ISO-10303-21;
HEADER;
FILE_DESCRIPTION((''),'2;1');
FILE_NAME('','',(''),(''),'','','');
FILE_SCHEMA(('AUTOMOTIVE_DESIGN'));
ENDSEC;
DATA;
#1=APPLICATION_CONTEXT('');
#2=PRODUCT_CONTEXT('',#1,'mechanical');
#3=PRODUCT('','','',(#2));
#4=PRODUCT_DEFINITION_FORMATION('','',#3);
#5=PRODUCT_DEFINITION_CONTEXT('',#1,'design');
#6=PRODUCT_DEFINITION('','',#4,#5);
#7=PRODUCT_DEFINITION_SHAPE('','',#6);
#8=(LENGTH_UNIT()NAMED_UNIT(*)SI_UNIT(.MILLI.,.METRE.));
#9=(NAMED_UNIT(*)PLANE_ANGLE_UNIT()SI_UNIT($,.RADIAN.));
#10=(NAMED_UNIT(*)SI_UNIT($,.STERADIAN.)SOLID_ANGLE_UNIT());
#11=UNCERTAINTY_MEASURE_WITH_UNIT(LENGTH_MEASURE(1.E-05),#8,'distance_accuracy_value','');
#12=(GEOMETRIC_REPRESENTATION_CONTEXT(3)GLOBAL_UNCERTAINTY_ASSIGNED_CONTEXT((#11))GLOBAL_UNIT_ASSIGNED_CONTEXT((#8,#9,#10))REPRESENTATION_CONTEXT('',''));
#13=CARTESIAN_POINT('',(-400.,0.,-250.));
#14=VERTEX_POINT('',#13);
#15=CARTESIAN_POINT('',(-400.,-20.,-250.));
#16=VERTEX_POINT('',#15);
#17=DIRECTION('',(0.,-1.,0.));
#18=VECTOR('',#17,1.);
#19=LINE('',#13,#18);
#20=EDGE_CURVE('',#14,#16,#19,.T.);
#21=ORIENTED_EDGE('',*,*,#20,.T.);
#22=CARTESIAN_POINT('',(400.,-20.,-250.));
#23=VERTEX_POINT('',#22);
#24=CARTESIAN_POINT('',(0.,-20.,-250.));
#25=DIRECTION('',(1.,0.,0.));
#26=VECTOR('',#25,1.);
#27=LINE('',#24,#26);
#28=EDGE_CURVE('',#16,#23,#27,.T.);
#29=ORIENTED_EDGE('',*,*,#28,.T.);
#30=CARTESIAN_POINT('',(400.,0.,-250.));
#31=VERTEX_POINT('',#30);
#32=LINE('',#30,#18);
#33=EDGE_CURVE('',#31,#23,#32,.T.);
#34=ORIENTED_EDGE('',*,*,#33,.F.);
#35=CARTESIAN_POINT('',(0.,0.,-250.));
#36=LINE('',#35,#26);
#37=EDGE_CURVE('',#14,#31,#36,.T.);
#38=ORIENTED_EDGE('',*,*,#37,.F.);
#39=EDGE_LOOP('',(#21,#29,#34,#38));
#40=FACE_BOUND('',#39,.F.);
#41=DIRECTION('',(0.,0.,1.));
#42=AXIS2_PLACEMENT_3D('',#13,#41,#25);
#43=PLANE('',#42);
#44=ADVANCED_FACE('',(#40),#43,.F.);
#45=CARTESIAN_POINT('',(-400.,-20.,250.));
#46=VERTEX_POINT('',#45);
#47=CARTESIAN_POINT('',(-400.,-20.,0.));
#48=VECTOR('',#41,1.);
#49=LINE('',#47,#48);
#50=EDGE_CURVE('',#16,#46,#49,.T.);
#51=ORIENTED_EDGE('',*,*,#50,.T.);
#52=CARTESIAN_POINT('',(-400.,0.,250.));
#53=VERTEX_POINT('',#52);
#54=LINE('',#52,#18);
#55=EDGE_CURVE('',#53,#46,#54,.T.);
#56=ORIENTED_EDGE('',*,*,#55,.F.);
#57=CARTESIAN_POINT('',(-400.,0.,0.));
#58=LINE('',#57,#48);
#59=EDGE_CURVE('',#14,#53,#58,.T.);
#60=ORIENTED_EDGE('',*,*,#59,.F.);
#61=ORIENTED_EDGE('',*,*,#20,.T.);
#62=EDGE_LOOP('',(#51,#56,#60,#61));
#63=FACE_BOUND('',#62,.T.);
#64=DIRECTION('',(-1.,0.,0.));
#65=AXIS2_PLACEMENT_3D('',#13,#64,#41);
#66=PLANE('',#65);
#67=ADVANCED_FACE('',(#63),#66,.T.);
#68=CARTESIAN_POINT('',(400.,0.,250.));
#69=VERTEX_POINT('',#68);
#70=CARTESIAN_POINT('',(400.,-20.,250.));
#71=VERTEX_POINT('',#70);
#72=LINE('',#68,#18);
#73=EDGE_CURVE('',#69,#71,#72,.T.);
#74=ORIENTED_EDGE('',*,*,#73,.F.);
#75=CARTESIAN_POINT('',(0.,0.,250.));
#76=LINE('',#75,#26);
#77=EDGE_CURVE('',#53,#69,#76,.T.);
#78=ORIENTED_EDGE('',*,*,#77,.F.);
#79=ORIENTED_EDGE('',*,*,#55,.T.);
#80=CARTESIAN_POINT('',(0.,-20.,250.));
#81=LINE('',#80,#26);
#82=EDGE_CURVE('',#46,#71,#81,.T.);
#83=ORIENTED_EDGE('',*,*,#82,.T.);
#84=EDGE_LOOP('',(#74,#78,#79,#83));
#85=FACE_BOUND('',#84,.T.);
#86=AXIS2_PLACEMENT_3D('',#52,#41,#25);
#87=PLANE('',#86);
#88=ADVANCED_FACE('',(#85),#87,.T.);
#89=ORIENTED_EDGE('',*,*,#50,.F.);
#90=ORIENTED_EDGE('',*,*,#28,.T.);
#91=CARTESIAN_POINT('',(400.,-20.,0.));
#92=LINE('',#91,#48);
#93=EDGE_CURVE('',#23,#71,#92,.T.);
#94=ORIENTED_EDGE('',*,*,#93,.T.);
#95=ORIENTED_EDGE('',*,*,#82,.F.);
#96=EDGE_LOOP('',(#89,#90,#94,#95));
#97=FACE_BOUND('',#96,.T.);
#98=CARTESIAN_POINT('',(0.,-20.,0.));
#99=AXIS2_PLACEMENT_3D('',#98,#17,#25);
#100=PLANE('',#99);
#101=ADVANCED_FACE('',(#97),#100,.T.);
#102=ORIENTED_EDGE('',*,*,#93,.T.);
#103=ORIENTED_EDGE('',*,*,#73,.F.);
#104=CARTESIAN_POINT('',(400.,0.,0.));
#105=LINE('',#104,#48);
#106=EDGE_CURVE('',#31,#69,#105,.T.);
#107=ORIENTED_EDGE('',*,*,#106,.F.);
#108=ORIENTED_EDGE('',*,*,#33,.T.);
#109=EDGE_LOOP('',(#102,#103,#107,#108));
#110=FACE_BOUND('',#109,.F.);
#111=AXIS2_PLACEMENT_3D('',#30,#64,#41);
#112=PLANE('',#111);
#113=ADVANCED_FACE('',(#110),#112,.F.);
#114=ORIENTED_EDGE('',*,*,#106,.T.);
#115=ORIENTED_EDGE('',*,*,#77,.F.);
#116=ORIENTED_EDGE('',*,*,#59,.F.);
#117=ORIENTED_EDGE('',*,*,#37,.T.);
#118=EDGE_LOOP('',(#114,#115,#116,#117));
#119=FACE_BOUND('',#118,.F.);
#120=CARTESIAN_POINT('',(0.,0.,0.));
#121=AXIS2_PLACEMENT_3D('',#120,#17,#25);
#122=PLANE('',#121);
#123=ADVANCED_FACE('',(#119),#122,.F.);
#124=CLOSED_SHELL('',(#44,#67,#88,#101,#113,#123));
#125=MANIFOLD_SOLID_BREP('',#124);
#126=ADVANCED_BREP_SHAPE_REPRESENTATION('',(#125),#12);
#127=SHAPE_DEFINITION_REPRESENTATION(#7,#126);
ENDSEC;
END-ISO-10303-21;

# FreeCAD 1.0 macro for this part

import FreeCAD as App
import Part
import Sketcher

V = App.Vector
Q = App.Units.Quantity


def add_polygon(sketch, points):
    """Adds a closed chain of lines whose ends are joined by coincident constraints."""
    first, n = sketch.GeometryCount, len(points)
    for a, b in zip(points, points[1:] + points[:1]):
        sketch.addGeometry(Part.LineSegment(App.Vector(*a, 0), App.Vector(*b, 0)), False)
    for i in range(n):
        sketch.addConstraint(Sketcher.Constraint("Coincident", first + i, 2, first + (i + 1) % n, 1))

doc = App.newDocument("Part")
body = doc.addObject("PartDesign::Body", "Body")

# Sketch on XZ plane
sketch1 = doc.addObject("Sketcher::SketchObject", "Sketch")
body.addObject(sketch1)
sketch1.AttachmentSupport = (doc.XZ_Plane, [""])
sketch1.MapMode = "FlatFace"
add_polygon(sketch1, [(-400, 250), (-400, -250), (400, -250), (400, 250)])  # lines 0-3
sketch1.addConstraint(Sketcher.Constraint("Vertical", 0))
sketch1.addConstraint(Sketcher.Constraint("Horizontal", 1))
sketch1.addConstraint(Sketcher.Constraint("Vertical", 2))
sketch1.addConstraint(Sketcher.Constraint("Horizontal", 3))
sketch1.addConstraint(Sketcher.Constraint("Symmetric", 0, 2, 2, 2, -1, 1))
sketch1.addConstraint(Sketcher.Constraint("DistanceX", 1, 1, 1, 2, Q("800 mm")))
sketch1.addConstraint(Sketcher.Constraint("DistanceY", 0, 2, 0, 1, Q("500 mm")))
pad1 = doc.addObject("PartDesign::Pad", "Pad")
body.addObject(pad1)
pad1.Profile = sketch1
pad1.Length = 20

doc.recompute()
